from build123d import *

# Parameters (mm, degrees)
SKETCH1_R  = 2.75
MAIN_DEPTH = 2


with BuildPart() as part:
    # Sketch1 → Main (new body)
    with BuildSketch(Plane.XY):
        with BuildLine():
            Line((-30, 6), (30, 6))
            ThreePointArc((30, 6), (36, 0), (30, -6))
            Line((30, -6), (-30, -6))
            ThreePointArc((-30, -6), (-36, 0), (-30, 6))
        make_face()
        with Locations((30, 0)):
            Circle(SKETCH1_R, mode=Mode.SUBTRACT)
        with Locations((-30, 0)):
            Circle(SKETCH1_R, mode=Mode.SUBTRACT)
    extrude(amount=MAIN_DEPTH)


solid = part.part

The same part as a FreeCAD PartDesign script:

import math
import FreeCAD as App
import Part
import Sketcher
from FreeCAD import Vector

doc = App.newDocument("Part")
body = doc.addObject("PartDesign::Body", "Body")

sketch1 = doc.addObject("Sketcher::SketchObject", "Sketch")
body.addObject(sketch1)
sketch1.AttachmentSupport = (doc.XY_Plane, [""])
sketch1.MapMode = "FlatFace"
sketch1.addGeometry(Part.LineSegment(Vector(30, 6, 0), Vector(-30, 6, 0)), False)
sketch1.addGeometry(Part.ArcOfCircle(Part.Circle(Vector(-30, 0, 0), Vector(0, 0, 1), 6), math.radians(90), math.radians(270)), False)
sketch1.addGeometry(Part.LineSegment(Vector(-30, -6, 0), Vector(30, -6, 0)), False)
sketch1.addGeometry(Part.ArcOfCircle(Part.Circle(Vector(30, 0, 0), Vector(0, 0, 1), 6), math.radians(-90), math.radians(90)), False)
sketch1.addGeometry(Part.Circle(Vector(30, 0, 0), Vector(0, 0, 1), 2.8), False)
sketch1.addGeometry(Part.Circle(Vector(-30, 0, 0), Vector(0, 0, 1), 2.8), False)
sketch1.addConstraint(Sketcher.Constraint("Tangent", 0, 2, 1, 1))
sketch1.addConstraint(Sketcher.Constraint("Tangent", 1, 2, 2, 1))
sketch1.addConstraint(Sketcher.Constraint("Tangent", 2, 2, 3, 1))
sketch1.addConstraint(Sketcher.Constraint("Tangent", 3, 2, 0, 1))
sketch1.addConstraint(Sketcher.Constraint("Horizontal", 0))
sketch1.addConstraint(Sketcher.Constraint("Horizontal", 2))
sketch1.addConstraint(Sketcher.Constraint("Coincident", 4, 3, 3, 3))
sketch1.addConstraint(Sketcher.Constraint("Coincident", 5, 3, 1, 3))
sketch1.addConstraint(Sketcher.Constraint("Equal", 4, 5))
sketch1.addConstraint(Sketcher.Constraint("Symmetric", 1, 3, 3, 3, -1, 1))
sketch1.addConstraint(Sketcher.Constraint("Radius", 1, 6.0))
sketch1.addConstraint(Sketcher.Constraint("Diameter", 4, 5.5))
sketch1.addConstraint(Sketcher.Constraint("DistanceX", 0, 2, 0, 1, 60.0))
pad1 = doc.addObject("PartDesign::Pad", "Pad")
body.addObject(pad1)
pad1.Profile = sketch1
pad1.Length = 2

doc.recompute()
